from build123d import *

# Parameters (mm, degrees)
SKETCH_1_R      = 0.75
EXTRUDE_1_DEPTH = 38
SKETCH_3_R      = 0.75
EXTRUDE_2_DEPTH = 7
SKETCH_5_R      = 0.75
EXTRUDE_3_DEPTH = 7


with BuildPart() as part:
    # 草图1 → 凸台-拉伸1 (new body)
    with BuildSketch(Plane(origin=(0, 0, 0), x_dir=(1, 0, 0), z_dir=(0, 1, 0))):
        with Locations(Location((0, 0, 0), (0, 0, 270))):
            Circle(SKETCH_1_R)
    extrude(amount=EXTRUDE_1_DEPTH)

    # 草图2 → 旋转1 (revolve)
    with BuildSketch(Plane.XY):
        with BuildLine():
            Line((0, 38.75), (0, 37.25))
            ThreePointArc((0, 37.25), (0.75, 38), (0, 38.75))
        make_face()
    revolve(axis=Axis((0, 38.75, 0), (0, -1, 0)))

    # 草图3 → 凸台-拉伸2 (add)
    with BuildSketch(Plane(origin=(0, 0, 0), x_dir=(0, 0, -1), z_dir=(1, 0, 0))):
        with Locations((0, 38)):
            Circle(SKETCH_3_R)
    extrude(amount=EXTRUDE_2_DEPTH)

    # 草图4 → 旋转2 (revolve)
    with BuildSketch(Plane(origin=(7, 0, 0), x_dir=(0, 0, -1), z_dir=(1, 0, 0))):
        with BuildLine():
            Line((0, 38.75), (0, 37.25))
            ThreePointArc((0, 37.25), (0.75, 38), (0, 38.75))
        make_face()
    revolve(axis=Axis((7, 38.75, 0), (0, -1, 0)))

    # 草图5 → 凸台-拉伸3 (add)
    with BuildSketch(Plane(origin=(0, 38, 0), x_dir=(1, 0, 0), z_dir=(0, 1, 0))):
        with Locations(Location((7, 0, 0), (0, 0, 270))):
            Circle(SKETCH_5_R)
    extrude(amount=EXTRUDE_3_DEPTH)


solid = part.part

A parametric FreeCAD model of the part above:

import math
import FreeCAD as App
import Part
import Sketcher
Q = App.Units.Quantity

doc = App.newDocument("Part")
body = doc.addObject("PartDesign::Body", "Body")

sketch1 = body.newObject("Sketcher::SketchObject", "Sketch")
sketch1.AttachmentSupport = (doc.getObject("XZ_Plane"), [""])
sketch1.MapMode = "FlatFace"
sketch1.addGeometry(Part.Circle(App.Vector(0, 0, 0), App.Vector(0, 0, 1), 0.8), False)
sketch1.addConstraint(Sketcher.Constraint("Coincident", 0, 3, -1, 1))
sketch1.addConstraint(Sketcher.Constraint("Diameter", 0, Q("1.5 mm")))
pad1 = body.newObject("PartDesign::Pad", "Pad")
pad1.Profile = sketch1
pad1.Length = 38
pad1.Reversed = True

sketch2 = body.newObject("Sketcher::SketchObject", "Sketch001")
sketch2.AttachmentSupport = (doc.getObject("XY_Plane"), [""])
sketch2.MapMode = "FlatFace"
sketch2.addGeometry(Part.LineSegment(App.Vector(0, 38.8, 0), App.Vector(0, 37.2, 0)), False)
sketch2.addGeometry(Part.ArcOfCircle(Part.Circle(App.Vector(0, 38, 0), App.Vector(0, 0, 1), 0.8), math.radians(-90), math.radians(90)), False)
sketch2.addConstraint(Sketcher.Constraint("Coincident", 0, 1, 1, 2))
sketch2.addConstraint(Sketcher.Constraint("Coincident", 1, 1, 0, 2))
sketch2.addConstraint(Sketcher.Constraint("Vertical", 0))
sketch2.addConstraint(Sketcher.Constraint("PointOnObject", 1, 3, -2))
sketch2.addConstraint(Sketcher.Constraint("PointOnObject", 0, 1, -2))
sketch2.addConstraint(Sketcher.Constraint("Radius", 1, Q("0.75 mm")))
sketch2.addConstraint(Sketcher.Constraint("DistanceY", -1, 1, 1, 3, Q("38 mm")))
revolution = body.newObject("PartDesign::Revolution", "Revolution")
revolution.Profile = sketch2
revolution.ReferenceAxis = (sketch2, ["V_Axis"])
revolution.Angle = 360

sketch3 = body.newObject("Sketcher::SketchObject", "Sketch002")
sketch3.AttachmentSupport = (doc.getObject("YZ_Plane"), [""])
sketch3.MapMode = "FlatFace"
sketch3.addGeometry(Part.Circle(App.Vector(38, 0, 0), App.Vector(0, 0, 1), 0.8), False)
sketch3.addConstraint(Sketcher.Constraint("PointOnObject", 0, 3, -1))
sketch3.addConstraint(Sketcher.Constraint("Diameter", 0, Q("1.5 mm")))
sketch3.addConstraint(Sketcher.Constraint("DistanceX", -1, 1, 0, 3, Q("38 mm")))
pad2 = body.newObject("PartDesign::Pad", "Pad001")
pad2.Profile = sketch3
pad2.Length = 7

sketch4 = body.newObject("Sketcher::SketchObject", "Sketch003")
sketch4.AttachmentSupport = (doc.getObject("YZ_Plane"), [""])
sketch4.MapMode = "FlatFace"
sketch4.AttachmentOffset = App.Placement(App.Vector(0, 0, 7), App.Rotation())
sketch4.addGeometry(Part.LineSegment(App.Vector(38.8, 0, 0), App.Vector(37.2, 0, 0)), False)
sketch4.addGeometry(Part.ArcOfCircle(Part.Circle(App.Vector(38, 0, 0), App.Vector(0, 0, 1), 0.8), math.radians(180), math.radians(360)), False)
sketch4.addConstraint(Sketcher.Constraint("Coincident", 0, 1, 1, 2))
sketch4.addConstraint(Sketcher.Constraint("Coincident", 1, 1, 0, 2))
sketch4.addConstraint(Sketcher.Constraint("Horizontal", 0))
sketch4.addConstraint(Sketcher.Constraint("PointOnObject", 1, 3, -1))
sketch4.addConstraint(Sketcher.Constraint("PointOnObject", 0, 1, -1))
sketch4.addConstraint(Sketcher.Constraint("Radius", 1, Q("0.75 mm")))
sketch4.addConstraint(Sketcher.Constraint("DistanceX", -1, 1, 1, 3, Q("38 mm")))
revolution2 = body.newObject("PartDesign::Revolution", "Revolution001")
revolution2.Profile = sketch4
revolution2.ReferenceAxis = (sketch4, ["H_Axis"])
revolution2.Angle = 360

sketch5 = body.newObject("Sketcher::SketchObject", "Sketch004")
sketch5.AttachmentSupport = (doc.getObject("XZ_Plane"), [""])
sketch5.MapMode = "FlatFace"
sketch5.AttachmentOffset = App.Placement(App.Vector(0, 0, -38), App.Rotation())
sketch5.addGeometry(Part.Circle(App.Vector(7, 0, 0), App.Vector(0, 0, 1), 0.8), False)
sketch5.addConstraint(Sketcher.Constraint("PointOnObject", 0, 3, -1))
sketch5.addConstraint(Sketcher.Constraint("Diameter", 0, Q("1.5 mm")))
sketch5.addConstraint(Sketcher.Constraint("DistanceX", -1, 1, 0, 3, Q("7 mm")))
pad3 = body.newObject("PartDesign::Pad", "Pad002")
pad3.Profile = sketch5
pad3.Length = 7
pad3.Reversed = True

doc.recompute()
